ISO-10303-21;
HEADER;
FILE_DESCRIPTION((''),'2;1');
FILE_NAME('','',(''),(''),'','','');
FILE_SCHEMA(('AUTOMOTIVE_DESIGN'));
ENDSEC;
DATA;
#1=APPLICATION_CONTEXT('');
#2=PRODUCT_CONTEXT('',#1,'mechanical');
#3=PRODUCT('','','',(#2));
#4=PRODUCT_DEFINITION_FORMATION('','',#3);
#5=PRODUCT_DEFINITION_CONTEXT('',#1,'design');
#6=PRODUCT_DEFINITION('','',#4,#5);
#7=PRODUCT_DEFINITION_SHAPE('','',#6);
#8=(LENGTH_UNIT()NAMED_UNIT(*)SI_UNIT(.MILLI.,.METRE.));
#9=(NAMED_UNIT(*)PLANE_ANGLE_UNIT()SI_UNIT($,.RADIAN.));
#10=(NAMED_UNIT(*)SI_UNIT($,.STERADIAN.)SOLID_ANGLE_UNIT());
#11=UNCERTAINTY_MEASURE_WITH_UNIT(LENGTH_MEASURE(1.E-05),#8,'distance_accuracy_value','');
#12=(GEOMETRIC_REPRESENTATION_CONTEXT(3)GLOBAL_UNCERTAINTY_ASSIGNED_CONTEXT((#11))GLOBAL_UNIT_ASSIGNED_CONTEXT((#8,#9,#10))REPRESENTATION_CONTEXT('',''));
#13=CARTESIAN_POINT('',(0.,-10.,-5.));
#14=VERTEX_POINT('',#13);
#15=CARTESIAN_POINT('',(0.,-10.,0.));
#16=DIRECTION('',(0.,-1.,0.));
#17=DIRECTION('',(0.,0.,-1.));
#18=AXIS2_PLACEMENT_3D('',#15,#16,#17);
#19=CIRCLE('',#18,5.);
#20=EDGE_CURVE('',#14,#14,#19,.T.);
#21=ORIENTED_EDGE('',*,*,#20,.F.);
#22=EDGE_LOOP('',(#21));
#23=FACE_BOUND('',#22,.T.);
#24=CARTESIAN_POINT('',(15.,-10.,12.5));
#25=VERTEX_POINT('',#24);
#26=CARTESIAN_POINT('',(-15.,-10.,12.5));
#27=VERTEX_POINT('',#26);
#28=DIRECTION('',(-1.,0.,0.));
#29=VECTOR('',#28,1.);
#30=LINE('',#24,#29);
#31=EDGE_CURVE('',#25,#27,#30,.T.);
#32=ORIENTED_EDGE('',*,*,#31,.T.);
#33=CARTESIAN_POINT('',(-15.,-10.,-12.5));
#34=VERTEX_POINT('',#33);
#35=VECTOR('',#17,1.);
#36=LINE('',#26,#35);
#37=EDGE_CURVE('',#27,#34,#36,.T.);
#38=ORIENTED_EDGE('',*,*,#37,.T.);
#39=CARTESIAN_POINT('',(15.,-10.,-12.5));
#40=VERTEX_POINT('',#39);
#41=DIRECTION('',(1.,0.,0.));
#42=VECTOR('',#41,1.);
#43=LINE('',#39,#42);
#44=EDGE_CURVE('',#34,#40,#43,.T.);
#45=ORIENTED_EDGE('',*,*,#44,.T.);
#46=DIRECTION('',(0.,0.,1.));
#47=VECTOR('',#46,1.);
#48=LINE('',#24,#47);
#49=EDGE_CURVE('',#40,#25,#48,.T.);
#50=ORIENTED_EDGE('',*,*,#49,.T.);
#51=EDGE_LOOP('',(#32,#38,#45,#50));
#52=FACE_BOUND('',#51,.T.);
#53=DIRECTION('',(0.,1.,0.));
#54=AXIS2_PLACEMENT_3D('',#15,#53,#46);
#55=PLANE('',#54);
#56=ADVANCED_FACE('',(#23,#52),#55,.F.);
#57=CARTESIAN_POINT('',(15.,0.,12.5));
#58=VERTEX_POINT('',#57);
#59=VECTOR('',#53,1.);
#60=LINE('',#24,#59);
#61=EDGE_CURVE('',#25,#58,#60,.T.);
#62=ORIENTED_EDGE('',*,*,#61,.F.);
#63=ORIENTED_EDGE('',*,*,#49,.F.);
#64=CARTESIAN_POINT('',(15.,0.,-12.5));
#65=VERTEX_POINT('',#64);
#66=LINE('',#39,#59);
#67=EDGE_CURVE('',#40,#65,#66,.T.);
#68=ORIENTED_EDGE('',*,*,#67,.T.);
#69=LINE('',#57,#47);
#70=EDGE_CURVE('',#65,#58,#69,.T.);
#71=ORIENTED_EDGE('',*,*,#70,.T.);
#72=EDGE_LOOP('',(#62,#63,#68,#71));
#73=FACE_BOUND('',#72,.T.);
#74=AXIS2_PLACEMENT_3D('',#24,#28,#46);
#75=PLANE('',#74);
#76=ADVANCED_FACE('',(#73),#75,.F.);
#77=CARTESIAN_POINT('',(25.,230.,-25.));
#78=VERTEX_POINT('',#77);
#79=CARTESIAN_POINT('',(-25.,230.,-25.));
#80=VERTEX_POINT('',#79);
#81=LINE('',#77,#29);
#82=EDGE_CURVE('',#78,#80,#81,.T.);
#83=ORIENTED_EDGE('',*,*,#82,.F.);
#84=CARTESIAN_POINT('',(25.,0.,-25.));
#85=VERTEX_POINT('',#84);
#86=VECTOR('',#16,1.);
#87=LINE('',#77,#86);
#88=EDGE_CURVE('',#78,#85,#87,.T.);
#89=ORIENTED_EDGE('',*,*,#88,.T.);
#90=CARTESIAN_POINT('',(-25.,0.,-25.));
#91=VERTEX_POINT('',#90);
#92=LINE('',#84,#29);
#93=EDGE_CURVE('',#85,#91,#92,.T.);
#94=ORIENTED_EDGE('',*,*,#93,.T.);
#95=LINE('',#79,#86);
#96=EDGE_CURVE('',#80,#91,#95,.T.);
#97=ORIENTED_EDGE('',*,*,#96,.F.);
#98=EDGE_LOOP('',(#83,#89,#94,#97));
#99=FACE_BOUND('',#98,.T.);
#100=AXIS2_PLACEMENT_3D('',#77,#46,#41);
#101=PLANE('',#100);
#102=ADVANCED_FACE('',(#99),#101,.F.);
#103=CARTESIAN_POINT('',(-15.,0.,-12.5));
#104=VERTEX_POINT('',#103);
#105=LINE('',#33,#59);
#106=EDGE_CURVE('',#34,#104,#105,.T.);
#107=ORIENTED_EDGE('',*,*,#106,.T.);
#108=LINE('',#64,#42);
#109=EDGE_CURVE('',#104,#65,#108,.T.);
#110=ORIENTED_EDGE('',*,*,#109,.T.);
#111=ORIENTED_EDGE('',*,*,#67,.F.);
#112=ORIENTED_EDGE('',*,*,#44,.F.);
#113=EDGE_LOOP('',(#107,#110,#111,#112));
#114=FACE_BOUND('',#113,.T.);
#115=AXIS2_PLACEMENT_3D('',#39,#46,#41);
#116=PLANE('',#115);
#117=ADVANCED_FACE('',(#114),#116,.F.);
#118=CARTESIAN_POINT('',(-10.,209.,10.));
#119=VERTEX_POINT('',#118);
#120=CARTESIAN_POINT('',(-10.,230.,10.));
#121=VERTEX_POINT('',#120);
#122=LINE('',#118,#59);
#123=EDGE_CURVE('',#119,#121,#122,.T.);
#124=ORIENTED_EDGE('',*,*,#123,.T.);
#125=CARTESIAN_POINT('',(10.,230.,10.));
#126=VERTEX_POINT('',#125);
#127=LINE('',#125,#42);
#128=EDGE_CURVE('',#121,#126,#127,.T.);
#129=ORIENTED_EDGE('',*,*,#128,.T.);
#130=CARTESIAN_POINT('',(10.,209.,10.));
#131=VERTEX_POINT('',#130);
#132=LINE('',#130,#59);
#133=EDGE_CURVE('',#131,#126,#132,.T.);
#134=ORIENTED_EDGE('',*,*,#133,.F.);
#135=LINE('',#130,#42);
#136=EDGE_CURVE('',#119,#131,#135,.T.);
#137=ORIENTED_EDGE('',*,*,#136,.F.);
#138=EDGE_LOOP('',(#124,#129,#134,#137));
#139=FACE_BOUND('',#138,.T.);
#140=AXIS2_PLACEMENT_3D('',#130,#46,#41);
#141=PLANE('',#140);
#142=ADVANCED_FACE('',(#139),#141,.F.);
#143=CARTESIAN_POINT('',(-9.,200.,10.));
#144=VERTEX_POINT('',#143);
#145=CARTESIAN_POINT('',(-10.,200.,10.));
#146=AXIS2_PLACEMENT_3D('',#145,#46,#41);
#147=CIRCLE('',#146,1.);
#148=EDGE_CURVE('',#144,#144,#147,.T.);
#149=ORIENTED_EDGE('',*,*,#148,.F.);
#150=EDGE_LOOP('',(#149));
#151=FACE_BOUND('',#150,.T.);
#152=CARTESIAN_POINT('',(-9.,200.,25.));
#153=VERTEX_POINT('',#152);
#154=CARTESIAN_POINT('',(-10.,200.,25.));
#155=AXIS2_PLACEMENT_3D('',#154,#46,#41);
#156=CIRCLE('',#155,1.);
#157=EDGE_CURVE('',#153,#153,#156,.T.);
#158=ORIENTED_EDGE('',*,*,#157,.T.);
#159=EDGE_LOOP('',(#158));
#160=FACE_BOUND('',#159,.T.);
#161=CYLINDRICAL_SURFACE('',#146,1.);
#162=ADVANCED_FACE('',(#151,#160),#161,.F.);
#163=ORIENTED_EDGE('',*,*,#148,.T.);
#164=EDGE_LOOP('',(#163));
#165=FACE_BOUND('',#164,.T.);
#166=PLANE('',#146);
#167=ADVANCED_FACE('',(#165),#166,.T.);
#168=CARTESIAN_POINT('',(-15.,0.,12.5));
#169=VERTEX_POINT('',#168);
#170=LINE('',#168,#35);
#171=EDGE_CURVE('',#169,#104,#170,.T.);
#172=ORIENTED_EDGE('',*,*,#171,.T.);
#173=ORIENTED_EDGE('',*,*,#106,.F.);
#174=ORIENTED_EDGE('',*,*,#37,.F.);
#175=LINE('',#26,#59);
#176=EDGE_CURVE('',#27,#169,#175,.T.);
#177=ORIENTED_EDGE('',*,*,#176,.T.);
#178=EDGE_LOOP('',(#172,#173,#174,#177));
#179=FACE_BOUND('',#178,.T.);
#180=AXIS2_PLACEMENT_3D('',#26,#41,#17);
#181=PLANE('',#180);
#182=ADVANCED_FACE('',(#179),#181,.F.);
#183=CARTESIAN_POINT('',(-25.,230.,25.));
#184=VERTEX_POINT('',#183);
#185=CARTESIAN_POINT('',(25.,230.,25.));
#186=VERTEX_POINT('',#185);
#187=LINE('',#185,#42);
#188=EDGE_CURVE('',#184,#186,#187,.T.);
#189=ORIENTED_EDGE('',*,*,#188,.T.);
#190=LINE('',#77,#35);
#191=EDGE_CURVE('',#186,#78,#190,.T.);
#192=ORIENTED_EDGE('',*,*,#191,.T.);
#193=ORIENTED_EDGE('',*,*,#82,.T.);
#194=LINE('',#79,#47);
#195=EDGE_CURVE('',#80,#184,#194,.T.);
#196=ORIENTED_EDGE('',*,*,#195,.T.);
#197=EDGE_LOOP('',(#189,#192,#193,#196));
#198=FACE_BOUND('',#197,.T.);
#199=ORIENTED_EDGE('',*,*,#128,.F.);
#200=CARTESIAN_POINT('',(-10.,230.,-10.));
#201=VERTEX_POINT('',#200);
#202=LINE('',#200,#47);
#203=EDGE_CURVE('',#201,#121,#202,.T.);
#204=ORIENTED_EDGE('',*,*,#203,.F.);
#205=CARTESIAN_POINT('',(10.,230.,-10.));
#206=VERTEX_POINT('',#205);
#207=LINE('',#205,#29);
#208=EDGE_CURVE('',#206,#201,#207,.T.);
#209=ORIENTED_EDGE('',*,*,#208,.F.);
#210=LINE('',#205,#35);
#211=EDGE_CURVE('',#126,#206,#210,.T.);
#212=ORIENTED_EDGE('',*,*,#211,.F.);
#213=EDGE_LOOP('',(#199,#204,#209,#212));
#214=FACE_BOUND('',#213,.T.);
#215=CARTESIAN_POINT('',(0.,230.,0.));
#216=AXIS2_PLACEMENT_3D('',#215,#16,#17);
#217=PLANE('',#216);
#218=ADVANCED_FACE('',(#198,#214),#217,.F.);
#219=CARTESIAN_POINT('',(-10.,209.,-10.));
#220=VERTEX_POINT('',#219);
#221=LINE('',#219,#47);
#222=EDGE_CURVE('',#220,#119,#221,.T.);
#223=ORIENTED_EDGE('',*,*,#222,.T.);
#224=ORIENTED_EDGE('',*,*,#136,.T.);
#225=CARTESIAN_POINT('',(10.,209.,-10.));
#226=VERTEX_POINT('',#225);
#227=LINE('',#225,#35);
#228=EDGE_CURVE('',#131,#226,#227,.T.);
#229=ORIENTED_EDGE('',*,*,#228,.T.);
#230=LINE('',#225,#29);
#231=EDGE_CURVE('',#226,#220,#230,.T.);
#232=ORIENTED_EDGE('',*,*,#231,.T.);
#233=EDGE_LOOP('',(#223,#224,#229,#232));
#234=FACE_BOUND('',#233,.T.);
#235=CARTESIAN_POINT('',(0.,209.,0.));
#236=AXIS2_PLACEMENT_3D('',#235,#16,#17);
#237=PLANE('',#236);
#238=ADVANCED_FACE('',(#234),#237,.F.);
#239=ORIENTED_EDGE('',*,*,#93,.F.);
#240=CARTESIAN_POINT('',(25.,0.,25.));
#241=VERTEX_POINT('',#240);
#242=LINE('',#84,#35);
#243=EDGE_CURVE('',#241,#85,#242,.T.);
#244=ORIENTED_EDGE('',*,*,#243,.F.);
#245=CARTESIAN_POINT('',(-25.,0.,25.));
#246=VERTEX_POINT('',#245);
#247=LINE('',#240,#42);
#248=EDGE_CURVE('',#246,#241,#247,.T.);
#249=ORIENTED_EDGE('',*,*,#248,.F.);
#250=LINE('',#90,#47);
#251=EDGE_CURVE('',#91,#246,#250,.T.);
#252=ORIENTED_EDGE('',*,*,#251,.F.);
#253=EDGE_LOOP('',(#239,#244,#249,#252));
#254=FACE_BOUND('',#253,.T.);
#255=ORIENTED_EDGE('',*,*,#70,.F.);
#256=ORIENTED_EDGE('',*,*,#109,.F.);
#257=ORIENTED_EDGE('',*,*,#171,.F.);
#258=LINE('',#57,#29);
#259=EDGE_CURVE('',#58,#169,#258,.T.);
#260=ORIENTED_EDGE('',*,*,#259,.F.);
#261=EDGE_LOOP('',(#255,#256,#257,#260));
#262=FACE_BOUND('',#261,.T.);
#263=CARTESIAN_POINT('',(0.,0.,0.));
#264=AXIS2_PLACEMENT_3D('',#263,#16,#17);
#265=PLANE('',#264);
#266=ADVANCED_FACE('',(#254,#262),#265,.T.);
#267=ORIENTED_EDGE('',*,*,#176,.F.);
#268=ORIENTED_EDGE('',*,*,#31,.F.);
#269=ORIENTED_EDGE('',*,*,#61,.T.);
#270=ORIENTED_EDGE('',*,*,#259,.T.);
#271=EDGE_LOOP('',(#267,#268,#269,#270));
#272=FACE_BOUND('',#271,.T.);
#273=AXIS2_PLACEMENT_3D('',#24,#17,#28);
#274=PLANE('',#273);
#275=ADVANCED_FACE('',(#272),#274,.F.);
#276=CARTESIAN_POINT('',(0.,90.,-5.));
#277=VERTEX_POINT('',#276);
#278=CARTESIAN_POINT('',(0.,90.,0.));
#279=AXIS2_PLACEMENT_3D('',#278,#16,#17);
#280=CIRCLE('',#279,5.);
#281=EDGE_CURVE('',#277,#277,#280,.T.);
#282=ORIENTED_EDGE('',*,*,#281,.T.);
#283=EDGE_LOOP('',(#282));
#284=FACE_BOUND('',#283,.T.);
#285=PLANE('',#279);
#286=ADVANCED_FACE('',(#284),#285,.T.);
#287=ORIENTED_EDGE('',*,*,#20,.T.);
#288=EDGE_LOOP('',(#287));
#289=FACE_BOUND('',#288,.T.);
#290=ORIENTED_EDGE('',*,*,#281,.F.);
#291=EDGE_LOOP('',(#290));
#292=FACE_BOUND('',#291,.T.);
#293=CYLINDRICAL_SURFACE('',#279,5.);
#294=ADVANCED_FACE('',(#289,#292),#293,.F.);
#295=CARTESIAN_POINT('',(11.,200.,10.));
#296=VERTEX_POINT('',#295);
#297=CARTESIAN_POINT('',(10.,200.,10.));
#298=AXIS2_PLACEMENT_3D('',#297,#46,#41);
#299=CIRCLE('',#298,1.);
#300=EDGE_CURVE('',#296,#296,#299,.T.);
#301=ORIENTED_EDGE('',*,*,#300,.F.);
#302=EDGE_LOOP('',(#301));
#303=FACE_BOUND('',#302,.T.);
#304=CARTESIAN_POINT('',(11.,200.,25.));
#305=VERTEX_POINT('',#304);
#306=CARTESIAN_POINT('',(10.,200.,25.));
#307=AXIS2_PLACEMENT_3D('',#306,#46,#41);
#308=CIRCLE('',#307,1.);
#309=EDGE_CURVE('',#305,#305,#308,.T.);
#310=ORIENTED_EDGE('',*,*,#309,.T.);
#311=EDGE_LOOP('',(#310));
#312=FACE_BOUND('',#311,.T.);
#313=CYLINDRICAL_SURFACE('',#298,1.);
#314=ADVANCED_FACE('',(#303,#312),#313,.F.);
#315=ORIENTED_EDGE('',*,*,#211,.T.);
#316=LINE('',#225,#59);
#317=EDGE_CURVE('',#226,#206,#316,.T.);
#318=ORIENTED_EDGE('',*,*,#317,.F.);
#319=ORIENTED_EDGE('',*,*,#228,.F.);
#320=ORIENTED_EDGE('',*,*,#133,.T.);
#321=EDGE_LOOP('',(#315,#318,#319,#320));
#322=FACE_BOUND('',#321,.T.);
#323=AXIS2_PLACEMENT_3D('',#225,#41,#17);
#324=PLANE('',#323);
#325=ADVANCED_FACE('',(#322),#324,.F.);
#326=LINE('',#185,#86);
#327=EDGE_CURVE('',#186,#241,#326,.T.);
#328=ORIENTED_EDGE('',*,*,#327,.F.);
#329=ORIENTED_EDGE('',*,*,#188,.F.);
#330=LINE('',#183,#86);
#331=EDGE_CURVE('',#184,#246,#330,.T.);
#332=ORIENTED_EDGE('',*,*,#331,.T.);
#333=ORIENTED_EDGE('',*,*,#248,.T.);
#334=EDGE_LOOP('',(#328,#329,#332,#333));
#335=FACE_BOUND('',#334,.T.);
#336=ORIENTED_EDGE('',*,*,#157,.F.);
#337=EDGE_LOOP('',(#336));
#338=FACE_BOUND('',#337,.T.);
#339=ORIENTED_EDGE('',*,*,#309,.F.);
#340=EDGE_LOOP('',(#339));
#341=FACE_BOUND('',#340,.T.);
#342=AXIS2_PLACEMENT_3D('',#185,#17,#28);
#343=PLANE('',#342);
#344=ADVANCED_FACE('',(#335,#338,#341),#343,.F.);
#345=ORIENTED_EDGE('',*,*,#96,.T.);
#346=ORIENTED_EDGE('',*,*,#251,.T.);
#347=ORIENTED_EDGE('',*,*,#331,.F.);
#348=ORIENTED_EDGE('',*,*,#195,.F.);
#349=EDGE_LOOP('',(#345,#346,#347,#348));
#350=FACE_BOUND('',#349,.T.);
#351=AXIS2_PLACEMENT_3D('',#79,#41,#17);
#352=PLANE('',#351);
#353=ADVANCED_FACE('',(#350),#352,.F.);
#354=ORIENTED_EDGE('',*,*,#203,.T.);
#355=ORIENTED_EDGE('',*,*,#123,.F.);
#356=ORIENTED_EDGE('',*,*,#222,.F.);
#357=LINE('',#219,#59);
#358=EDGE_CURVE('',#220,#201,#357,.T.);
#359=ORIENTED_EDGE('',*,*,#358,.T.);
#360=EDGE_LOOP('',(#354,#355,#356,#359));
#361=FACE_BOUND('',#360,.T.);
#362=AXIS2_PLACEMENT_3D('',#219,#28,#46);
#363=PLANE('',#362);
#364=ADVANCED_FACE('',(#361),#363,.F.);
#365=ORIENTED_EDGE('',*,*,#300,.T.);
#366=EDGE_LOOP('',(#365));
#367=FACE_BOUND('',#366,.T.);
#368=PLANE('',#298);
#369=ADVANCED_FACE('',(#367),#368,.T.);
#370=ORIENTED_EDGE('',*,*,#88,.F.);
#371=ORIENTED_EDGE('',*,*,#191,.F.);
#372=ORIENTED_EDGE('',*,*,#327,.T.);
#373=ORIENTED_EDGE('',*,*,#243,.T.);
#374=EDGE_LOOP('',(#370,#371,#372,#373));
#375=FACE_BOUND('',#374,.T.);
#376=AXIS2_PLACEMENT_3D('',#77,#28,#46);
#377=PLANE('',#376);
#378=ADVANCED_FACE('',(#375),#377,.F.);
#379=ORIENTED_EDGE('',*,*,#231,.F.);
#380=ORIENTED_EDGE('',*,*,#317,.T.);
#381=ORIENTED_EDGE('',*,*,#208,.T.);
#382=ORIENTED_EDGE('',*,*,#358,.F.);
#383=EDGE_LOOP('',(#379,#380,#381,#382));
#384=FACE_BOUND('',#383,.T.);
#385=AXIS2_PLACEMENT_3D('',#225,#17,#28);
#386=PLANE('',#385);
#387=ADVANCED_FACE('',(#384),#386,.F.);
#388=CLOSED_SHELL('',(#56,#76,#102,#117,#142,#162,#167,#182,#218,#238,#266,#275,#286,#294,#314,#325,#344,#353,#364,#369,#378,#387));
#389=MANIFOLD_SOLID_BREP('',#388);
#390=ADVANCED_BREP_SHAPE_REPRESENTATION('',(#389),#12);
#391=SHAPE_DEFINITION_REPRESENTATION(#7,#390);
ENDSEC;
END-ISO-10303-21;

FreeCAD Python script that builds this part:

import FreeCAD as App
import Part
import Sketcher
Q = App.Units.Quantity


def add_polygon(sketch, points):
    """Adds a closed chain of lines whose ends are joined by coincident constraints."""
    first, n = sketch.GeometryCount, len(points)
    for a, b in zip(points, points[1:] + points[:1]):
        sketch.addGeometry(Part.LineSegment(App.Vector(*a, 0), App.Vector(*b, 0)), False)
    for i in range(n):
        sketch.addConstraint(Sketcher.Constraint("Coincident", first + i, 2, first + (i + 1) % n, 1))

doc = App.newDocument("Part")
body = doc.addObject("PartDesign::Body", "Body")

# Sketch on XZ plane
sketch1 = body.newObject("Sketcher::SketchObject", "Sketch")
sketch1.AttachmentSupport = (doc.getObject("XZ_Plane"), [""])
sketch1.MapMode = "FlatFace"
add_polygon(sketch1, [(-25, -25), (-25, 25), (25, 25), (25, -25)])  # lines 0-3
sketch1.addConstraint([
    Sketcher.Constraint("Vertical", 0),
    Sketcher.Constraint("Horizontal", 1),
    Sketcher.Constraint("Vertical", 2),
    Sketcher.Constraint("Horizontal", 3),
    Sketcher.Constraint("Symmetric", 0, 2, 2, 2, -1, 1),
    Sketcher.Constraint("Equal", 3, 0),
    Sketcher.Constraint("DistanceX", 1, 1, 1, 2, Q("50 mm")),
])
pad1 = body.newObject("PartDesign::Pad", "Pad")
pad1.Profile = sketch1
pad1.Length = 230
pad1.Reversed = True

# Sketch on XZ plane
sketch2 = body.newObject("Sketcher::SketchObject", "Sketch001")
sketch2.AttachmentSupport = (doc.getObject("XZ_Plane"), [""])
sketch2.MapMode = "FlatFace"
add_polygon(sketch2, [(15, -12), (15, 12), (-15, 12), (-15, -12)])  # lines 0-3
sketch2.addConstraint([
    Sketcher.Constraint("Vertical", 0),
    Sketcher.Constraint("Horizontal", 1),
    Sketcher.Constraint("Vertical", 2),
    Sketcher.Constraint("Horizontal", 3),
    Sketcher.Constraint("Symmetric", 0, 2, 2, 2, -1, 1),
    Sketcher.Constraint("DistanceX", 1, 2, 1, 1, Q("30 mm")),
    Sketcher.Constraint("DistanceY", 0, 1, 0, 2, Q("25 mm")),
])
pad2 = body.newObject("PartDesign::Pad", "Pad001")
pad2.Profile = sketch2
pad2.Length = 10

# Sketch on XZ plane
sketch3 = body.newObject("Sketcher::SketchObject", "Sketch002")
sketch3.AttachmentSupport = (doc.getObject("XZ_Plane"), [""])
sketch3.MapMode = "FlatFace"
sketch3.AttachmentOffset = App.Placement(App.Vector(0, 0, 10), App.Rotation())
sketch3.addGeometry(Part.Circle(App.Vector(0, 0, 0), App.Vector(0, 0, 1), 5), False)
sketch3.addConstraint([
    Sketcher.Constraint("Coincident", 0, 3, -1, 1),
    Sketcher.Constraint("Diameter", 0, Q("10 mm")),
])
pocket1 = body.newObject("PartDesign::Pocket", "Pocket")
pocket1.Profile = sketch3
pocket1.Length = 100

# Sketch on XZ plane
sketch4 = body.newObject("Sketcher::SketchObject", "Sketch003")
sketch4.AttachmentSupport = (doc.getObject("XZ_Plane"), [""])
sketch4.MapMode = "FlatFace"
sketch4.AttachmentOffset = App.Placement(App.Vector(0, 0, -230), App.Rotation())
add_polygon(sketch4, [(-10, -10), (-10, 10), (10, 10), (10, -10)])  # lines 0-3
sketch4.addConstraint([
    Sketcher.Constraint("Vertical", 0),
    Sketcher.Constraint("Horizontal", 1),
    Sketcher.Constraint("Vertical", 2),
    Sketcher.Constraint("Horizontal", 3),
    Sketcher.Constraint("Symmetric", 0, 2, 2, 2, -1, 1),
    Sketcher.Constraint("Equal", 3, 0),
    Sketcher.Constraint("DistanceX", 1, 1, 1, 2, Q("20 mm")),
])
pocket2 = body.newObject("PartDesign::Pocket", "Pocket001")
pocket2.Profile = sketch4
pocket2.Length = 21
pocket2.Reversed = True

# Sketch on XY plane
sketch5 = body.newObject("Sketcher::SketchObject", "Sketch004")
sketch5.AttachmentSupport = (doc.getObject("XY_Plane"), [""])
sketch5.MapMode = "FlatFace"
sketch5.AttachmentOffset = App.Placement(App.Vector(0, 0, 25), App.Rotation())
sketch5.addGeometry([
    Part.Circle(App.Vector(10, 200, 0), App.Vector(0, 0, 1), 1),
    Part.Circle(App.Vector(-10, 200, 0), App.Vector(0, 0, 1), 1),
], False)
sketch5.addConstraint([
    Sketcher.Constraint("Equal", 0, 1),
    Sketcher.Constraint("Symmetric", 0, 3, 1, 3, -2),
    Sketcher.Constraint("Diameter", 0, Q("2 mm")),
    Sketcher.Constraint("DistanceX", -1, 1, 0, 3, Q("10 mm")),
    Sketcher.Constraint("DistanceY", -1, 1, 0, 3, Q("200 mm")),
])
pocket3 = body.newObject("PartDesign::Pocket", "Pocket002")
pocket3.Profile = sketch5
pocket3.Length = 15

doc.recompute()
